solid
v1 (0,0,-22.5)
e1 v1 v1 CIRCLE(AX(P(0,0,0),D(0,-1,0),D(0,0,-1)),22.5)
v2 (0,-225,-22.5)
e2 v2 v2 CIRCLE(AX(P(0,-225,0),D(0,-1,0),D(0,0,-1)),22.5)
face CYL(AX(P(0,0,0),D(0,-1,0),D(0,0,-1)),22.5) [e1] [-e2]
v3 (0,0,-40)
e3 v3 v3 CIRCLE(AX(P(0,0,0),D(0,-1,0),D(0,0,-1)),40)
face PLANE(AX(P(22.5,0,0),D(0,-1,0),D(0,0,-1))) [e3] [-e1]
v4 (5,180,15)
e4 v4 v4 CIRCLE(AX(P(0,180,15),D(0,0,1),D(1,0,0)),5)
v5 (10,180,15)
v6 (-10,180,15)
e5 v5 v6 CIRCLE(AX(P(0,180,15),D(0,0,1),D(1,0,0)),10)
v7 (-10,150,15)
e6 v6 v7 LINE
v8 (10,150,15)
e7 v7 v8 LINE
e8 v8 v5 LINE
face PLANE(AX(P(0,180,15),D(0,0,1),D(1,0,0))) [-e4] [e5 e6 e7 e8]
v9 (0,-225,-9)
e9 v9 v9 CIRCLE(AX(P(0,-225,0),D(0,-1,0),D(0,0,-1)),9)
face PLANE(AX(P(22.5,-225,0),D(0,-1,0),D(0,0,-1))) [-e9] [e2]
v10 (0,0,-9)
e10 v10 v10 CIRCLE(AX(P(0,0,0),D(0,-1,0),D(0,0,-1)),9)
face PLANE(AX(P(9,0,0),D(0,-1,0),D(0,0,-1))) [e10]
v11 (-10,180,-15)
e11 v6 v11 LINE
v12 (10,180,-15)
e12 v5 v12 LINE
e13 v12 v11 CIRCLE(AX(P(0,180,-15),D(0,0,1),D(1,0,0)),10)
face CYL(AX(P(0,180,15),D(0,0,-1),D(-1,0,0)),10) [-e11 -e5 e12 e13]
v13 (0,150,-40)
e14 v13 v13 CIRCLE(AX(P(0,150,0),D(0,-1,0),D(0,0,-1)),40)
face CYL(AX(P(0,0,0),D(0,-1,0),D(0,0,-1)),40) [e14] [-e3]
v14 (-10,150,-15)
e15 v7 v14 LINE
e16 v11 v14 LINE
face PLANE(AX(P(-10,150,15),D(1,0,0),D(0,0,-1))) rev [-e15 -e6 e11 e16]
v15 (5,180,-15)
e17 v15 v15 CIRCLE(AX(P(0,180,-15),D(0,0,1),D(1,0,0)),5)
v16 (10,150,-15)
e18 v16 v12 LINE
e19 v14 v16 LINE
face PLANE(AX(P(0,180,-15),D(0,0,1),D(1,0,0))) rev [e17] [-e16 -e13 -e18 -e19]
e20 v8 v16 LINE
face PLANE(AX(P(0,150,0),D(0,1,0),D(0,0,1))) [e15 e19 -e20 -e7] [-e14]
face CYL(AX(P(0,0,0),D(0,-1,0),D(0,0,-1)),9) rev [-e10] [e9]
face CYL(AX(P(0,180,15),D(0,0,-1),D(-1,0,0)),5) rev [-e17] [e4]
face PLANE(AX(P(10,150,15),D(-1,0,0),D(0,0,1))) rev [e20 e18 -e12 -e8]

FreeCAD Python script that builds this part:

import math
import FreeCAD as App
import Part
import Sketcher
from FreeCAD import Vector
Q = App.Units.Quantity

doc = App.newDocument("Part")
body = doc.addObject("PartDesign::Body", "Body")

# Sketch on XY plane
sketch1 = doc.addObject("Sketcher::SketchObject", "Sketch")
body.addObject(sketch1)
sketch1.AttachmentSupport = (doc.XY_Plane, [""])
sketch1.MapMode = "FlatFace"
sketch1.addGeometry([
    Part.LineSegment(Vector(40, 150, 0), Vector(0, 150, 0)),  # 0
    Part.LineSegment(Vector(0, 150, 0), Vector(0, 0, 0)),  # 1
    Part.LineSegment(Vector(0, 0, 0), Vector(9, 0, 0)),  # 2
    Part.LineSegment(Vector(9, 0, 0), Vector(9, -225, 0)),  # 3
    Part.LineSegment(Vector(9, -225, 0), Vector(22, -225, 0)),  # 4
    Part.LineSegment(Vector(22, -225, 0), Vector(22, 0, 0)),  # 5
    Part.LineSegment(Vector(22, 0, 0), Vector(40, 0, 0)),  # 6
    Part.LineSegment(Vector(40, 0, 0), Vector(40, 150, 0)),  # 7
], False)
sketch1.addConstraint([
    Sketcher.Constraint("Coincident", 0, 2, 1, 1),
    Sketcher.Constraint("Coincident", 1, 2, 2, 1),
    Sketcher.Constraint("Coincident", 2, 2, 3, 1),
    Sketcher.Constraint("Coincident", 3, 2, 4, 1),
    Sketcher.Constraint("Coincident", 4, 2, 5, 1),
    Sketcher.Constraint("Coincident", 5, 2, 6, 1),
    Sketcher.Constraint("Coincident", 6, 2, 7, 1),
    Sketcher.Constraint("Coincident", 7, 2, 0, 1),
    Sketcher.Constraint("Horizontal", 0),
    Sketcher.Constraint("Vertical", 1),
    Sketcher.Constraint("Horizontal", 2),
    Sketcher.Constraint("Vertical", 3),
    Sketcher.Constraint("Horizontal", 4),
    Sketcher.Constraint("Vertical", 5),
    Sketcher.Constraint("Horizontal", 6),
    Sketcher.Constraint("Vertical", 7),
    Sketcher.Constraint("Coincident", 1, 2, -1, 1),
    Sketcher.Constraint("PointOnObject", 5, 2, -1),
    Sketcher.Constraint("DistanceX", 0, 2, 0, 1, Q("40 mm")),
    Sketcher.Constraint("DistanceX", 2, 1, 2, 2, Q("9 mm")),
    Sketcher.Constraint("DistanceY", 1, 2, 1, 1, Q("150 mm")),
    Sketcher.Constraint("DistanceY", 3, 2, 3, 1, Q("225 mm")),
    Sketcher.Constraint("DistanceX", 4, 1, 4, 2, Q("13.5 mm")),
])
revolution = doc.addObject("PartDesign::Revolution", "Revolution")
body.addObject(revolution)
revolution.Profile = sketch1
revolution.ReferenceAxis = (sketch1, ["V_Axis"])
revolution.Angle = 360

# Sketch on XY plane
sketch2 = doc.addObject("Sketcher::SketchObject", "Sketch001")
body.addObject(sketch2)
sketch2.AttachmentSupport = (doc.XY_Plane, [""])
sketch2.MapMode = "FlatFace"
sketch2.addGeometry([
    Part.LineSegment(Vector(10, 150, 0), Vector(10, 180, 0)),  # 0
    Part.ArcOfCircle(Part.Circle(Vector(0, 180, 0), Vector(0, 0, 1), 10), math.radians(0), math.radians(180)),  # 1
    Part.LineSegment(Vector(-10, 180, 0), Vector(-10, 150, 0)),  # 2
    Part.LineSegment(Vector(-10, 150, 0), Vector(10, 150, 0)),  # 3
    Part.Circle(Vector(0, 180, 0), Vector(0, 0, 1), 5),  # 4
], False)
sketch2.addConstraint([
    Sketcher.Constraint("Tangent", 0, 2, 1, 1),
    Sketcher.Constraint("Tangent", 1, 2, 2, 1),
    Sketcher.Constraint("Coincident", 2, 2, 3, 1),
    Sketcher.Constraint("Coincident", 3, 2, 0, 1),
    Sketcher.Constraint("Vertical", 0),
    Sketcher.Constraint("Vertical", 2),
    Sketcher.Constraint("Horizontal", 3),
    Sketcher.Constraint("Coincident", 4, 3, 1, 3),
    Sketcher.Constraint("PointOnObject", 1, 3, -2),
    Sketcher.Constraint("Diameter", 4, Q("10 mm")),
    Sketcher.Constraint("Radius", 1, Q("10 mm")),
    Sketcher.Constraint("DistanceY", 0, 1, 0, 2, Q("30 mm")),
    Sketcher.Constraint("DistanceY", -1, 1, 1, 3, Q("180 mm")),
])
pad1 = doc.addObject("PartDesign::Pad", "Pad")
body.addObject(pad1)
pad1.Profile = sketch2
pad1.Length = 30
pad1.Midplane = True

doc.recompute()
